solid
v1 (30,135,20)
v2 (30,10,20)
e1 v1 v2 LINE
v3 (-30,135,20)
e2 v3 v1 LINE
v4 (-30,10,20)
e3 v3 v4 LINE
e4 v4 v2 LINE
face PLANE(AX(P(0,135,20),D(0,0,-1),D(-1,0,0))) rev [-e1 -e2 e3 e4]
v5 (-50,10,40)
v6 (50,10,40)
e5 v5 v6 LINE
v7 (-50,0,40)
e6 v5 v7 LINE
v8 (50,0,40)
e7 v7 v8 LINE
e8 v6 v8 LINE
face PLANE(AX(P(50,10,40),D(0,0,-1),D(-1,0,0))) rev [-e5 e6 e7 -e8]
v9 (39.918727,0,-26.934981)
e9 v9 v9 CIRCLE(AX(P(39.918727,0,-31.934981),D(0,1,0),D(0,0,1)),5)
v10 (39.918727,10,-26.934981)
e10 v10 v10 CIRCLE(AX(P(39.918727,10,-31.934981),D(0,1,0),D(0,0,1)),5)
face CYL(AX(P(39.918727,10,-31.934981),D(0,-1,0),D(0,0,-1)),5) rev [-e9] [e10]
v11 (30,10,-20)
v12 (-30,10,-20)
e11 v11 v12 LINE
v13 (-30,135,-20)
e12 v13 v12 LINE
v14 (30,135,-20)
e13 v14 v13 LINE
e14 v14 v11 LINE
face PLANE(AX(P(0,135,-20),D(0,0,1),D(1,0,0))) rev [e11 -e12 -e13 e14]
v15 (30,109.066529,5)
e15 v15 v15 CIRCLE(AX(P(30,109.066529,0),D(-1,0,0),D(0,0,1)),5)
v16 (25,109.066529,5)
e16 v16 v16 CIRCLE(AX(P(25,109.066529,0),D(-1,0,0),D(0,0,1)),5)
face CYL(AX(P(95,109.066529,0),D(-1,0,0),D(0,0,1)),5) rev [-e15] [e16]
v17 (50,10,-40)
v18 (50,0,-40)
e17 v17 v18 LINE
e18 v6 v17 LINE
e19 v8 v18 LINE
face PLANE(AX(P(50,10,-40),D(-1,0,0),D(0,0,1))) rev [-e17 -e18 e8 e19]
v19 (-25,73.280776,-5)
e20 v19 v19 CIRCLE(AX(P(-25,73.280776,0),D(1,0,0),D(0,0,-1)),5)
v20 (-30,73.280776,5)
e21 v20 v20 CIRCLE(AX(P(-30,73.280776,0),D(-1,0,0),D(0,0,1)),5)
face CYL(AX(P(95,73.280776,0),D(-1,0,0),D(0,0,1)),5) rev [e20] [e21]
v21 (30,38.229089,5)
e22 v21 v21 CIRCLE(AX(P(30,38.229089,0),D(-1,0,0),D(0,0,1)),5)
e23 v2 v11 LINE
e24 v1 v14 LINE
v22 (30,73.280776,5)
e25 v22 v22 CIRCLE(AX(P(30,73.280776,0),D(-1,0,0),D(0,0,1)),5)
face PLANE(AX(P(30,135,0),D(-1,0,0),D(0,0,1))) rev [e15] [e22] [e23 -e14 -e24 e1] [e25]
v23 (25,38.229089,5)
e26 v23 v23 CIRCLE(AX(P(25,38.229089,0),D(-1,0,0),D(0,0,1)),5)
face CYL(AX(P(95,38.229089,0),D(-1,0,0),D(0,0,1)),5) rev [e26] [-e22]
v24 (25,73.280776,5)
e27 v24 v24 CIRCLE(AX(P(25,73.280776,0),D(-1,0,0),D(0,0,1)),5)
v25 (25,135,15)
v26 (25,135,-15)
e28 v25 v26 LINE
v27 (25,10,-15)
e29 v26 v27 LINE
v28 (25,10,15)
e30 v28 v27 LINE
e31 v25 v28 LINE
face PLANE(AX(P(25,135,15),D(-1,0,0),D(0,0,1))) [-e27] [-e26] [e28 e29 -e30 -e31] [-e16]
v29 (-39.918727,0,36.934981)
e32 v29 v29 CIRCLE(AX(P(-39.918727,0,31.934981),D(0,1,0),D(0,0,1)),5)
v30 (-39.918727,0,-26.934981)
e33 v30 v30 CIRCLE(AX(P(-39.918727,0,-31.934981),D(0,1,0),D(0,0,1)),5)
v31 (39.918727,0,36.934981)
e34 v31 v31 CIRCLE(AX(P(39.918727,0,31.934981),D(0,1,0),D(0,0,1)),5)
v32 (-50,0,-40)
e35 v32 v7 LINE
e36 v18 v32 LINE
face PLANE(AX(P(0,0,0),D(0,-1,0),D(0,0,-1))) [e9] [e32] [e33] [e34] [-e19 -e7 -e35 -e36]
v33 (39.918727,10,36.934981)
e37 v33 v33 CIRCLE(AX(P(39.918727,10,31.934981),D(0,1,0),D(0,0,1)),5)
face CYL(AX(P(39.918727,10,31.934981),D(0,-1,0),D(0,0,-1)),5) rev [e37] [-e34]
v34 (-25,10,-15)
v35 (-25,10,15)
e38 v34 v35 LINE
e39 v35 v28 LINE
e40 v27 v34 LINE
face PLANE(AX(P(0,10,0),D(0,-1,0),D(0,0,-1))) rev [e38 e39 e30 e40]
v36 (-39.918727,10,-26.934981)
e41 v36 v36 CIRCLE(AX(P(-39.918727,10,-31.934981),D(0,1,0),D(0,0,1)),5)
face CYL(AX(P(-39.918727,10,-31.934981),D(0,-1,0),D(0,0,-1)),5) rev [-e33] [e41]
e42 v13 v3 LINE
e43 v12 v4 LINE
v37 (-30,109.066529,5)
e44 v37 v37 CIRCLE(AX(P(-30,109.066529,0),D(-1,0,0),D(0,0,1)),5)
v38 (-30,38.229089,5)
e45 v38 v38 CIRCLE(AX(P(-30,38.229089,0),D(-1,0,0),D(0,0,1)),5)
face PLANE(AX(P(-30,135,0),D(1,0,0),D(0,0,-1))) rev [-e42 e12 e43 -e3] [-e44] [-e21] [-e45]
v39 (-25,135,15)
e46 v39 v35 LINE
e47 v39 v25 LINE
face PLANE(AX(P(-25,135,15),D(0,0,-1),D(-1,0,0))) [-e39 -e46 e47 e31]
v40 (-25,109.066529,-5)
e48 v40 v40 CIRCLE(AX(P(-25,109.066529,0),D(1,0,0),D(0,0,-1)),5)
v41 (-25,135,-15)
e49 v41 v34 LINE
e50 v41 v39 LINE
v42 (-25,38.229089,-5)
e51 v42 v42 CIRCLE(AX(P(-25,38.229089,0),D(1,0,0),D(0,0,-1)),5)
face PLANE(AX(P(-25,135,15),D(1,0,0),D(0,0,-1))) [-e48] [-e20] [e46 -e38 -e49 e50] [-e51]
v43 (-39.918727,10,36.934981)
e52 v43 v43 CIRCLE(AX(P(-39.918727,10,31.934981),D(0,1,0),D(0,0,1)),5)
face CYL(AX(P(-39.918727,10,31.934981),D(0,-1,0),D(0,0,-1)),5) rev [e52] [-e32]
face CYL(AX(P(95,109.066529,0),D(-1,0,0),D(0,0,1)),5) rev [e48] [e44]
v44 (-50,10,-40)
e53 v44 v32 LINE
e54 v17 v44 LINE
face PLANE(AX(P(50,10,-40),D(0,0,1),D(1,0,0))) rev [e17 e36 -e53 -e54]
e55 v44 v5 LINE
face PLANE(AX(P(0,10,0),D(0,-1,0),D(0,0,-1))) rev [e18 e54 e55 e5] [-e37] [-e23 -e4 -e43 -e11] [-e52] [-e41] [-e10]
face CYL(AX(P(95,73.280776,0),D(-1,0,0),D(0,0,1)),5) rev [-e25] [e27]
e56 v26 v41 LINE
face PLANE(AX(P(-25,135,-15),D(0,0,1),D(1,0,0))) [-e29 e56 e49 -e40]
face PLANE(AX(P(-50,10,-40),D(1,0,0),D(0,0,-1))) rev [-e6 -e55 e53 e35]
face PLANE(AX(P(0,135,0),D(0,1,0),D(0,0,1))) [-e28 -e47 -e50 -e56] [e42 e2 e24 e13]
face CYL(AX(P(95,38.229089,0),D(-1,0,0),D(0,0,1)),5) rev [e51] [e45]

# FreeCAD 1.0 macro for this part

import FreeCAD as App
import Part
import Sketcher

doc = App.newDocument("Part")
body = doc.addObject("PartDesign::Body", "Body")

# Sketch on XZ plane
sketch1 = doc.addObject("Sketcher::SketchObject", "Sketch")
body.addObject(sketch1)
sketch1.AttachmentSupport = (doc.XZ_Plane, [""])
sketch1.MapMode = "FlatFace"
sketch1.addGeometry(Part.LineSegment(App.Vector(-50, -40, 0), App.Vector(-50, 40, 0)), False)
sketch1.addGeometry(Part.LineSegment(App.Vector(-50, 40, 0), App.Vector(50, 40, 0)), False)
sketch1.addGeometry(Part.LineSegment(App.Vector(50, 40, 0), App.Vector(50, -40, 0)), False)
sketch1.addGeometry(Part.LineSegment(App.Vector(50, -40, 0), App.Vector(-50, -40, 0)), False)
sketch1.addGeometry(Part.Circle(App.Vector(-40, 32, 0), App.Vector(0, 0, 1), 5), False)
sketch1.addGeometry(Part.Circle(App.Vector(40, 32, 0), App.Vector(0, 0, 1), 5), False)
sketch1.addGeometry(Part.Circle(App.Vector(-40, -32, 0), App.Vector(0, 0, 1), 5), False)
sketch1.addGeometry(Part.Circle(App.Vector(40, -32, 0), App.Vector(0, 0, 1), 5), False)
sketch1.addConstraint(Sketcher.Constraint("Coincident", 0, 2, 1, 1))
sketch1.addConstraint(Sketcher.Constraint("Coincident", 1, 2, 2, 1))
sketch1.addConstraint(Sketcher.Constraint("Coincident", 2, 2, 3, 1))
sketch1.addConstraint(Sketcher.Constraint("Coincident", 3, 2, 0, 1))
sketch1.addConstraint(Sketcher.Constraint("Vertical", 0))
sketch1.addConstraint(Sketcher.Constraint("Horizontal", 1))
sketch1.addConstraint(Sketcher.Constraint("Vertical", 2))
sketch1.addConstraint(Sketcher.Constraint("Horizontal", 3))
sketch1.addConstraint(Sketcher.Constraint("Equal", 4, 5))
sketch1.addConstraint(Sketcher.Constraint("Equal", 5, 6))
sketch1.addConstraint(Sketcher.Constraint("Equal", 6, 7))
sketch1.addConstraint(Sketcher.Constraint("Symmetric", 5, 3, 6, 3, -1, 1))
sketch1.addConstraint(Sketcher.Constraint("Symmetric", 4, 3, 7, 3, -1, 1))
sketch1.addConstraint(Sketcher.Constraint("Symmetric", 0, 2, 2, 2, -1, 1))
sketch1.addConstraint(Sketcher.Constraint("Symmetric", 4, 3, 5, 3, -2))
sketch1.addConstraint(Sketcher.Constraint("Diameter", 4, 10.0))
sketch1.addConstraint(Sketcher.Constraint("DistanceX", 1, 1, 1, 2, 100.0))
sketch1.addConstraint(Sketcher.Constraint("DistanceY", 0, 1, 0, 2, 80.0))
sketch1.addConstraint(Sketcher.Constraint("DistanceY", -1, 1, 4, 3, 31.934981))
sketch1.addConstraint(Sketcher.Constraint("DistanceX", 4, 3, -1, 1, 39.918727))
pad1 = doc.addObject("PartDesign::Pad", "Pad")
body.addObject(pad1)
pad1.Profile = sketch1
pad1.Length = 10
pad1.Reversed = True

# Sketch on XZ plane
sketch2 = doc.addObject("Sketcher::SketchObject", "Sketch001")
body.addObject(sketch2)
sketch2.AttachmentSupport = (doc.XZ_Plane, [""])
sketch2.MapMode = "FlatFace"
sketch2.AttachmentOffset = App.Placement(App.Vector(0, 0, -10), App.Rotation())
sketch2.addGeometry(Part.LineSegment(App.Vector(-30, -20, 0), App.Vector(-30, 20, 0)), False)
sketch2.addGeometry(Part.LineSegment(App.Vector(-30, 20, 0), App.Vector(30, 20, 0)), False)
sketch2.addGeometry(Part.LineSegment(App.Vector(30, 20, 0), App.Vector(30, -20, 0)), False)
sketch2.addGeometry(Part.LineSegment(App.Vector(30, -20, 0), App.Vector(-30, -20, 0)), False)
sketch2.addGeometry(Part.LineSegment(App.Vector(25, 15, 0), App.Vector(-25, 15, 0)), False)
sketch2.addGeometry(Part.LineSegment(App.Vector(-25, 15, 0), App.Vector(-25, -15, 0)), False)
sketch2.addGeometry(Part.LineSegment(App.Vector(-25, -15, 0), App.Vector(25, -15, 0)), False)
sketch2.addGeometry(Part.LineSegment(App.Vector(25, -15, 0), App.Vector(25, 15, 0)), False)
sketch2.addConstraint(Sketcher.Constraint("Coincident", 0, 2, 1, 1))
sketch2.addConstraint(Sketcher.Constraint("Coincident", 1, 2, 2, 1))
sketch2.addConstraint(Sketcher.Constraint("Coincident", 2, 2, 3, 1))
sketch2.addConstraint(Sketcher.Constraint("Coincident", 3, 2, 0, 1))
sketch2.addConstraint(Sketcher.Constraint("Coincident", 4, 2, 5, 1))
sketch2.addConstraint(Sketcher.Constraint("Coincident", 5, 2, 6, 1))
sketch2.addConstraint(Sketcher.Constraint("Coincident", 6, 2, 7, 1))
sketch2.addConstraint(Sketcher.Constraint("Coincident", 7, 2, 4, 1))
sketch2.addConstraint(Sketcher.Constraint("Vertical", 0))
sketch2.addConstraint(Sketcher.Constraint("Horizontal", 1))
sketch2.addConstraint(Sketcher.Constraint("Vertical", 2))
sketch2.addConstraint(Sketcher.Constraint("Horizontal", 3))
sketch2.addConstraint(Sketcher.Constraint("Horizontal", 4))
sketch2.addConstraint(Sketcher.Constraint("Vertical", 5))
sketch2.addConstraint(Sketcher.Constraint("Horizontal", 6))
sketch2.addConstraint(Sketcher.Constraint("Vertical", 7))
sketch2.addConstraint(Sketcher.Constraint("Symmetric", 0, 2, 2, 2, -1, 1))
sketch2.addConstraint(Sketcher.Constraint("Symmetric", 4, 2, 6, 2, -1, 1))
sketch2.addConstraint(Sketcher.Constraint("DistanceX", 1, 1, 1, 2, 60.0))
sketch2.addConstraint(Sketcher.Constraint("DistanceX", 4, 2, 4, 1, 50.0))
sketch2.addConstraint(Sketcher.Constraint("DistanceY", 0, 1, 0, 2, 40.0))
sketch2.addConstraint(Sketcher.Constraint("DistanceY", 5, 2, 5, 1, 30.0))
pad2 = doc.addObject("PartDesign::Pad", "Pad001")
body.addObject(pad2)
pad2.Profile = sketch2
pad2.Length = 125
pad2.Reversed = True

# Sketch on YZ plane
sketch3 = doc.addObject("Sketcher::SketchObject", "Sketch002")
body.addObject(sketch3)
sketch3.AttachmentSupport = (doc.YZ_Plane, [""])
sketch3.MapMode = "FlatFace"
sketch3.AttachmentOffset = App.Placement(App.Vector(0, 0, -30), App.Rotation())
sketch3.addGeometry(Part.Circle(App.Vector(38, 0, 0), App.Vector(0, 0, 1), 5), False)
sketch3.addGeometry(Part.Circle(App.Vector(73, 0, 0), App.Vector(0, 0, 1), 5), False)
sketch3.addGeometry(Part.Circle(App.Vector(109, 0, 0), App.Vector(0, 0, 1), 5), False)
sketch3.addConstraint(Sketcher.Constraint("Equal", 0, 1))
sketch3.addConstraint(Sketcher.Constraint("Equal", 1, 2))
sketch3.addConstraint(Sketcher.Constraint("PointOnObject", 0, 3, -1))
sketch3.addConstraint(Sketcher.Constraint("PointOnObject", 1, 3, -1))
sketch3.addConstraint(Sketcher.Constraint("PointOnObject", 2, 3, -1))
sketch3.addConstraint(Sketcher.Constraint("Diameter", 0, 10.0))
sketch3.addConstraint(Sketcher.Constraint("DistanceX", -1, 1, 0, 3, 38.229089))
sketch3.addConstraint(Sketcher.Constraint("DistanceX", -1, 1, 2, 3, 109.066529))
sketch3.addConstraint(Sketcher.Constraint("DistanceX", -1, 1, 1, 3, 73.280776))
pocket1 = doc.addObject("PartDesign::Pocket", "Pocket")
body.addObject(pocket1)
pocket1.Profile = sketch3
pocket1.Length = 125
pocket1.Reversed = True

doc.recompute()
